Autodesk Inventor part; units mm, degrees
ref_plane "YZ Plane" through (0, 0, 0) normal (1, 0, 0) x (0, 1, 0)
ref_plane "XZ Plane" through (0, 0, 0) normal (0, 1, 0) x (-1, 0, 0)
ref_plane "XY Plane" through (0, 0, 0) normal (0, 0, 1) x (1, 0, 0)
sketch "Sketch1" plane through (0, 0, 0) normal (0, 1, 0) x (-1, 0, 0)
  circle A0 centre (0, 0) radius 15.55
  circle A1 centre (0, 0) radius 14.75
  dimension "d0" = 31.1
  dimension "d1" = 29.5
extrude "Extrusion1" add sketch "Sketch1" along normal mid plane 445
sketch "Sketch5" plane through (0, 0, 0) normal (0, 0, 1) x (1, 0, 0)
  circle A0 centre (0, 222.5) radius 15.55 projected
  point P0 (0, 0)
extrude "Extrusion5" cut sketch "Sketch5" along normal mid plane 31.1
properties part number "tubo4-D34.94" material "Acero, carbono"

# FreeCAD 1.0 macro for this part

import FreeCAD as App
import Part
import Sketcher
from FreeCAD import Vector

doc = App.newDocument("Part")
body = doc.addObject("PartDesign::Body", "Body")

# Sketch on XZ plane
sketch1 = body.newObject("Sketcher::SketchObject", "Sketch")
sketch1.AttachmentSupport = (doc.getObject("XZ_Plane"), [""])
sketch1.MapMode = "FlatFace"
sketch1.addGeometry(Part.Circle(Vector(0, 0, 0), Vector(0, 0, 1), 16), False)
sketch1.addGeometry(Part.Circle(Vector(0, 0, 0), Vector(0, 0, 1), 15), False)
sketch1.addConstraint(Sketcher.Constraint("Coincident", 0, 3, -1, 1))
sketch1.addConstraint(Sketcher.Constraint("Coincident", 1, 3, -1, 1))
sketch1.addConstraint(Sketcher.Constraint("Diameter", 0, 31.1))
sketch1.addConstraint(Sketcher.Constraint("Diameter", 1, 29.5))
pad1 = body.newObject("PartDesign::Pad", "Pad")
pad1.Profile = sketch1
pad1.Length = 445
pad1.Midplane = True

# Sketch on XY plane
sketch2 = body.newObject("Sketcher::SketchObject", "Sketch001")
sketch2.AttachmentSupport = (doc.getObject("XY_Plane"), [""])
sketch2.MapMode = "FlatFace"
sketch2.addGeometry(Part.Circle(Vector(0, 222, 0), Vector(0, 0, 1), 16), False)
sketch2.addConstraint(Sketcher.Constraint("PointOnObject", 0, 3, -2))
sketch2.addConstraint(Sketcher.Constraint("Diameter", 0, 31.1))
sketch2.addConstraint(Sketcher.Constraint("DistanceY", -1, 1, 0, 3, 222.5))
pocket1 = body.newObject("PartDesign::Pocket", "Pocket")
pocket1.Profile = sketch2
pocket1.Length = 31.1
pocket1.Midplane = True

doc.recompute()
